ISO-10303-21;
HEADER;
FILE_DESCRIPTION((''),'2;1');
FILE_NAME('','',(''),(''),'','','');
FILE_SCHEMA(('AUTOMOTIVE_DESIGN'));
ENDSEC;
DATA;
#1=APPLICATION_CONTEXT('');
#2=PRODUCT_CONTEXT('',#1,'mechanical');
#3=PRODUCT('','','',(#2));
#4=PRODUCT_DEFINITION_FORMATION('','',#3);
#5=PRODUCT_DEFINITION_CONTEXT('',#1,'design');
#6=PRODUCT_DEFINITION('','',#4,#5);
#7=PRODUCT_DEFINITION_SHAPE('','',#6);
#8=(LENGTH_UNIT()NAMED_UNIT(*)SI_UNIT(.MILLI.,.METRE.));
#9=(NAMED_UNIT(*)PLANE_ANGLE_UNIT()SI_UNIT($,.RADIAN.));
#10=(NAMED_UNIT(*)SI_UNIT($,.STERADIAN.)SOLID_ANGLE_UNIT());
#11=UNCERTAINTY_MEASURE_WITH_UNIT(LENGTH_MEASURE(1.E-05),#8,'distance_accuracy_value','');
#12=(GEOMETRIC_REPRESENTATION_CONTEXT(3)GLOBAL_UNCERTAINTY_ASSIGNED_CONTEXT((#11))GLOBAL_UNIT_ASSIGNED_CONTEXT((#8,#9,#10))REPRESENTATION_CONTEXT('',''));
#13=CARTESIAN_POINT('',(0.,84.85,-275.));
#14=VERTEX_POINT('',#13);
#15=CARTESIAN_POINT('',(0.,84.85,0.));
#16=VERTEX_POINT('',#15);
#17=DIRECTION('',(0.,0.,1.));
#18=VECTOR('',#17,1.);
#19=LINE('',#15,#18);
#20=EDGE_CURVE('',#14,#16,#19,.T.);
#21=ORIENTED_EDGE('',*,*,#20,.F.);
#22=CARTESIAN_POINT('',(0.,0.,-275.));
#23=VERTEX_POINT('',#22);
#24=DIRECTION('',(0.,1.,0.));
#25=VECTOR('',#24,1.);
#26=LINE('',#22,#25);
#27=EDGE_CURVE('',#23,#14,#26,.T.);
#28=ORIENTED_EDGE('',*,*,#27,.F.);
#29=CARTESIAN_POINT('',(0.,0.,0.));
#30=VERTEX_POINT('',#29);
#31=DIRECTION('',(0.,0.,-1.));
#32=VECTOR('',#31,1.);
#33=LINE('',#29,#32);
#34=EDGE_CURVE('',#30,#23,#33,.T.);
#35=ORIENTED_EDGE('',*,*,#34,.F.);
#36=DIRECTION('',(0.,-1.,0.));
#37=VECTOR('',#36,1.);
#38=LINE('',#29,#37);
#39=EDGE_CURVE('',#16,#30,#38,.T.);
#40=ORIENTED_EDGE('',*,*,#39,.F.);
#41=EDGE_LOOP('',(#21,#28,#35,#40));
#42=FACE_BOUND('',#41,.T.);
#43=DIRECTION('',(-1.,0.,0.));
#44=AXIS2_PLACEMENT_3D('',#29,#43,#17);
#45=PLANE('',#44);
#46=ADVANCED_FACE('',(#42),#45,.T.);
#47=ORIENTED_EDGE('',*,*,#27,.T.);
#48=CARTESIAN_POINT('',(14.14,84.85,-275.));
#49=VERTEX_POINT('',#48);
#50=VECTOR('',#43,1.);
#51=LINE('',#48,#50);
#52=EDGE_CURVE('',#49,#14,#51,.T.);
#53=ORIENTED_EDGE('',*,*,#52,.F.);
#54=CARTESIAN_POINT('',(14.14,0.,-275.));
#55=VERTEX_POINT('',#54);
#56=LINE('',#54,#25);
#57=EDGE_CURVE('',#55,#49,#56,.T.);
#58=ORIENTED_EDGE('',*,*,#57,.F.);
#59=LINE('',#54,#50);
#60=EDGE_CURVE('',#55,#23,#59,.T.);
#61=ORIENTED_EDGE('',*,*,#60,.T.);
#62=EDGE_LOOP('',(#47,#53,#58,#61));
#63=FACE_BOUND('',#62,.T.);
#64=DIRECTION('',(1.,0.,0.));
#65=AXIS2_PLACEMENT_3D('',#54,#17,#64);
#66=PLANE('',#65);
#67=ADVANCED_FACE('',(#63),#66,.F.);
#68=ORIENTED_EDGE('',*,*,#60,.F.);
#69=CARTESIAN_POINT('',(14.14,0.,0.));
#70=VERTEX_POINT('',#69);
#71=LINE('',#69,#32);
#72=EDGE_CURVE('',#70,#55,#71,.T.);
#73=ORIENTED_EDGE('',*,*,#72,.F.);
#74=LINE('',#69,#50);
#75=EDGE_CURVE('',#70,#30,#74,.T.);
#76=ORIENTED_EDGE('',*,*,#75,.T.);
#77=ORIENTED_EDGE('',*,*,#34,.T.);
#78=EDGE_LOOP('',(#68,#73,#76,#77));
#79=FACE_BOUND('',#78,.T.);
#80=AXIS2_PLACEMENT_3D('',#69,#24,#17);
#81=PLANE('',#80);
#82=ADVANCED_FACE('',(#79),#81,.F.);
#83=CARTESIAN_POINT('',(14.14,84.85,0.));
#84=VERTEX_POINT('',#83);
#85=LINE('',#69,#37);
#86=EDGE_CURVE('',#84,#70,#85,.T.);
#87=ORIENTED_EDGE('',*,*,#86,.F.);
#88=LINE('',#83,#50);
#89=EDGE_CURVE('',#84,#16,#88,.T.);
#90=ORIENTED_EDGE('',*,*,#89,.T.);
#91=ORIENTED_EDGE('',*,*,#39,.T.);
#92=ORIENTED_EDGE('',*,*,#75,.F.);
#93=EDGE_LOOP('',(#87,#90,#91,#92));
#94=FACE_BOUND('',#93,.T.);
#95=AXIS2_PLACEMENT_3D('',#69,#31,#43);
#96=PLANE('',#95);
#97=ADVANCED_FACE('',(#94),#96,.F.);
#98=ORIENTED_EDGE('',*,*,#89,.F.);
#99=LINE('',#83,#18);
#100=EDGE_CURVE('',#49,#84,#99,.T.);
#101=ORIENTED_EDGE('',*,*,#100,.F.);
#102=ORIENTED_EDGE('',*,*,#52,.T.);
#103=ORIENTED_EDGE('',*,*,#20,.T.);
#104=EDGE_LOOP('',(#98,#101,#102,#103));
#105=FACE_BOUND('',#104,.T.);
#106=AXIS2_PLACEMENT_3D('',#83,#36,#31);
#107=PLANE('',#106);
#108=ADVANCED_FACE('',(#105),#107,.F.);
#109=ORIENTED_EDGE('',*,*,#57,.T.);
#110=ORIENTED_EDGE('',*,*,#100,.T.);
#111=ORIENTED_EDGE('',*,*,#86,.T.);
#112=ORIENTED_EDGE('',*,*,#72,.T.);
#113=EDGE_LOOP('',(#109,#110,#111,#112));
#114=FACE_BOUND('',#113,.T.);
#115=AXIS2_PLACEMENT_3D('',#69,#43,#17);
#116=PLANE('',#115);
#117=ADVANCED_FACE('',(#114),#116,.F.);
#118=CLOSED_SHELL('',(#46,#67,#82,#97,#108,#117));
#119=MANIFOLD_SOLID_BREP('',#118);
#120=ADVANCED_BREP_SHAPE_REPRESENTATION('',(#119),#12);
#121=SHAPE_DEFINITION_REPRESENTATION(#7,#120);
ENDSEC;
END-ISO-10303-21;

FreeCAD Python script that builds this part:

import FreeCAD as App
import Part
import Sketcher
Q = App.Units.Quantity

doc = App.newDocument("Part")
body = doc.addObject("PartDesign::Body", "Body")

# Sketch on YZ plane
sketch1 = body.newObject("Sketcher::SketchObject", "Sketch")
sketch1.AttachmentSupport = (doc.getObject("YZ_Plane"), [""])
sketch1.MapMode = "FlatFace"
sketch1.addGeometry([
    Part.LineSegment(App.Vector(84.85, 0, 0), App.Vector(0, 0, 0)),
    Part.LineSegment(App.Vector(0, 0, 0), App.Vector(0, -275, 0)),
    Part.LineSegment(App.Vector(0, -275, 0), App.Vector(84.85, -275, 0)),
    Part.LineSegment(App.Vector(84.85, -275, 0), App.Vector(84.85, 0, 0)),
], False)
sketch1.addConstraint([
    Sketcher.Constraint("Coincident", 0, 2, 1, 1),
    Sketcher.Constraint("Coincident", 1, 2, 2, 1),
    Sketcher.Constraint("Coincident", 2, 2, 3, 1),
    Sketcher.Constraint("Coincident", 3, 2, 0, 1),
    Sketcher.Constraint("Horizontal", 0),
    Sketcher.Constraint("Vertical", 1),
    Sketcher.Constraint("Horizontal", 2),
    Sketcher.Constraint("Vertical", 3),
    Sketcher.Constraint("Coincident", 0, 2, -1, 1),
    Sketcher.Constraint("DistanceY", 1, 2, 1, 1, Q("275 mm")),
    Sketcher.Constraint("DistanceX", 0, 2, 0, 1, Q("84.85 mm")),
])
pad1 = body.newObject("PartDesign::Pad", "Pad")
pad1.Profile = sketch1
pad1.Length = 14.14

doc.recompute()
